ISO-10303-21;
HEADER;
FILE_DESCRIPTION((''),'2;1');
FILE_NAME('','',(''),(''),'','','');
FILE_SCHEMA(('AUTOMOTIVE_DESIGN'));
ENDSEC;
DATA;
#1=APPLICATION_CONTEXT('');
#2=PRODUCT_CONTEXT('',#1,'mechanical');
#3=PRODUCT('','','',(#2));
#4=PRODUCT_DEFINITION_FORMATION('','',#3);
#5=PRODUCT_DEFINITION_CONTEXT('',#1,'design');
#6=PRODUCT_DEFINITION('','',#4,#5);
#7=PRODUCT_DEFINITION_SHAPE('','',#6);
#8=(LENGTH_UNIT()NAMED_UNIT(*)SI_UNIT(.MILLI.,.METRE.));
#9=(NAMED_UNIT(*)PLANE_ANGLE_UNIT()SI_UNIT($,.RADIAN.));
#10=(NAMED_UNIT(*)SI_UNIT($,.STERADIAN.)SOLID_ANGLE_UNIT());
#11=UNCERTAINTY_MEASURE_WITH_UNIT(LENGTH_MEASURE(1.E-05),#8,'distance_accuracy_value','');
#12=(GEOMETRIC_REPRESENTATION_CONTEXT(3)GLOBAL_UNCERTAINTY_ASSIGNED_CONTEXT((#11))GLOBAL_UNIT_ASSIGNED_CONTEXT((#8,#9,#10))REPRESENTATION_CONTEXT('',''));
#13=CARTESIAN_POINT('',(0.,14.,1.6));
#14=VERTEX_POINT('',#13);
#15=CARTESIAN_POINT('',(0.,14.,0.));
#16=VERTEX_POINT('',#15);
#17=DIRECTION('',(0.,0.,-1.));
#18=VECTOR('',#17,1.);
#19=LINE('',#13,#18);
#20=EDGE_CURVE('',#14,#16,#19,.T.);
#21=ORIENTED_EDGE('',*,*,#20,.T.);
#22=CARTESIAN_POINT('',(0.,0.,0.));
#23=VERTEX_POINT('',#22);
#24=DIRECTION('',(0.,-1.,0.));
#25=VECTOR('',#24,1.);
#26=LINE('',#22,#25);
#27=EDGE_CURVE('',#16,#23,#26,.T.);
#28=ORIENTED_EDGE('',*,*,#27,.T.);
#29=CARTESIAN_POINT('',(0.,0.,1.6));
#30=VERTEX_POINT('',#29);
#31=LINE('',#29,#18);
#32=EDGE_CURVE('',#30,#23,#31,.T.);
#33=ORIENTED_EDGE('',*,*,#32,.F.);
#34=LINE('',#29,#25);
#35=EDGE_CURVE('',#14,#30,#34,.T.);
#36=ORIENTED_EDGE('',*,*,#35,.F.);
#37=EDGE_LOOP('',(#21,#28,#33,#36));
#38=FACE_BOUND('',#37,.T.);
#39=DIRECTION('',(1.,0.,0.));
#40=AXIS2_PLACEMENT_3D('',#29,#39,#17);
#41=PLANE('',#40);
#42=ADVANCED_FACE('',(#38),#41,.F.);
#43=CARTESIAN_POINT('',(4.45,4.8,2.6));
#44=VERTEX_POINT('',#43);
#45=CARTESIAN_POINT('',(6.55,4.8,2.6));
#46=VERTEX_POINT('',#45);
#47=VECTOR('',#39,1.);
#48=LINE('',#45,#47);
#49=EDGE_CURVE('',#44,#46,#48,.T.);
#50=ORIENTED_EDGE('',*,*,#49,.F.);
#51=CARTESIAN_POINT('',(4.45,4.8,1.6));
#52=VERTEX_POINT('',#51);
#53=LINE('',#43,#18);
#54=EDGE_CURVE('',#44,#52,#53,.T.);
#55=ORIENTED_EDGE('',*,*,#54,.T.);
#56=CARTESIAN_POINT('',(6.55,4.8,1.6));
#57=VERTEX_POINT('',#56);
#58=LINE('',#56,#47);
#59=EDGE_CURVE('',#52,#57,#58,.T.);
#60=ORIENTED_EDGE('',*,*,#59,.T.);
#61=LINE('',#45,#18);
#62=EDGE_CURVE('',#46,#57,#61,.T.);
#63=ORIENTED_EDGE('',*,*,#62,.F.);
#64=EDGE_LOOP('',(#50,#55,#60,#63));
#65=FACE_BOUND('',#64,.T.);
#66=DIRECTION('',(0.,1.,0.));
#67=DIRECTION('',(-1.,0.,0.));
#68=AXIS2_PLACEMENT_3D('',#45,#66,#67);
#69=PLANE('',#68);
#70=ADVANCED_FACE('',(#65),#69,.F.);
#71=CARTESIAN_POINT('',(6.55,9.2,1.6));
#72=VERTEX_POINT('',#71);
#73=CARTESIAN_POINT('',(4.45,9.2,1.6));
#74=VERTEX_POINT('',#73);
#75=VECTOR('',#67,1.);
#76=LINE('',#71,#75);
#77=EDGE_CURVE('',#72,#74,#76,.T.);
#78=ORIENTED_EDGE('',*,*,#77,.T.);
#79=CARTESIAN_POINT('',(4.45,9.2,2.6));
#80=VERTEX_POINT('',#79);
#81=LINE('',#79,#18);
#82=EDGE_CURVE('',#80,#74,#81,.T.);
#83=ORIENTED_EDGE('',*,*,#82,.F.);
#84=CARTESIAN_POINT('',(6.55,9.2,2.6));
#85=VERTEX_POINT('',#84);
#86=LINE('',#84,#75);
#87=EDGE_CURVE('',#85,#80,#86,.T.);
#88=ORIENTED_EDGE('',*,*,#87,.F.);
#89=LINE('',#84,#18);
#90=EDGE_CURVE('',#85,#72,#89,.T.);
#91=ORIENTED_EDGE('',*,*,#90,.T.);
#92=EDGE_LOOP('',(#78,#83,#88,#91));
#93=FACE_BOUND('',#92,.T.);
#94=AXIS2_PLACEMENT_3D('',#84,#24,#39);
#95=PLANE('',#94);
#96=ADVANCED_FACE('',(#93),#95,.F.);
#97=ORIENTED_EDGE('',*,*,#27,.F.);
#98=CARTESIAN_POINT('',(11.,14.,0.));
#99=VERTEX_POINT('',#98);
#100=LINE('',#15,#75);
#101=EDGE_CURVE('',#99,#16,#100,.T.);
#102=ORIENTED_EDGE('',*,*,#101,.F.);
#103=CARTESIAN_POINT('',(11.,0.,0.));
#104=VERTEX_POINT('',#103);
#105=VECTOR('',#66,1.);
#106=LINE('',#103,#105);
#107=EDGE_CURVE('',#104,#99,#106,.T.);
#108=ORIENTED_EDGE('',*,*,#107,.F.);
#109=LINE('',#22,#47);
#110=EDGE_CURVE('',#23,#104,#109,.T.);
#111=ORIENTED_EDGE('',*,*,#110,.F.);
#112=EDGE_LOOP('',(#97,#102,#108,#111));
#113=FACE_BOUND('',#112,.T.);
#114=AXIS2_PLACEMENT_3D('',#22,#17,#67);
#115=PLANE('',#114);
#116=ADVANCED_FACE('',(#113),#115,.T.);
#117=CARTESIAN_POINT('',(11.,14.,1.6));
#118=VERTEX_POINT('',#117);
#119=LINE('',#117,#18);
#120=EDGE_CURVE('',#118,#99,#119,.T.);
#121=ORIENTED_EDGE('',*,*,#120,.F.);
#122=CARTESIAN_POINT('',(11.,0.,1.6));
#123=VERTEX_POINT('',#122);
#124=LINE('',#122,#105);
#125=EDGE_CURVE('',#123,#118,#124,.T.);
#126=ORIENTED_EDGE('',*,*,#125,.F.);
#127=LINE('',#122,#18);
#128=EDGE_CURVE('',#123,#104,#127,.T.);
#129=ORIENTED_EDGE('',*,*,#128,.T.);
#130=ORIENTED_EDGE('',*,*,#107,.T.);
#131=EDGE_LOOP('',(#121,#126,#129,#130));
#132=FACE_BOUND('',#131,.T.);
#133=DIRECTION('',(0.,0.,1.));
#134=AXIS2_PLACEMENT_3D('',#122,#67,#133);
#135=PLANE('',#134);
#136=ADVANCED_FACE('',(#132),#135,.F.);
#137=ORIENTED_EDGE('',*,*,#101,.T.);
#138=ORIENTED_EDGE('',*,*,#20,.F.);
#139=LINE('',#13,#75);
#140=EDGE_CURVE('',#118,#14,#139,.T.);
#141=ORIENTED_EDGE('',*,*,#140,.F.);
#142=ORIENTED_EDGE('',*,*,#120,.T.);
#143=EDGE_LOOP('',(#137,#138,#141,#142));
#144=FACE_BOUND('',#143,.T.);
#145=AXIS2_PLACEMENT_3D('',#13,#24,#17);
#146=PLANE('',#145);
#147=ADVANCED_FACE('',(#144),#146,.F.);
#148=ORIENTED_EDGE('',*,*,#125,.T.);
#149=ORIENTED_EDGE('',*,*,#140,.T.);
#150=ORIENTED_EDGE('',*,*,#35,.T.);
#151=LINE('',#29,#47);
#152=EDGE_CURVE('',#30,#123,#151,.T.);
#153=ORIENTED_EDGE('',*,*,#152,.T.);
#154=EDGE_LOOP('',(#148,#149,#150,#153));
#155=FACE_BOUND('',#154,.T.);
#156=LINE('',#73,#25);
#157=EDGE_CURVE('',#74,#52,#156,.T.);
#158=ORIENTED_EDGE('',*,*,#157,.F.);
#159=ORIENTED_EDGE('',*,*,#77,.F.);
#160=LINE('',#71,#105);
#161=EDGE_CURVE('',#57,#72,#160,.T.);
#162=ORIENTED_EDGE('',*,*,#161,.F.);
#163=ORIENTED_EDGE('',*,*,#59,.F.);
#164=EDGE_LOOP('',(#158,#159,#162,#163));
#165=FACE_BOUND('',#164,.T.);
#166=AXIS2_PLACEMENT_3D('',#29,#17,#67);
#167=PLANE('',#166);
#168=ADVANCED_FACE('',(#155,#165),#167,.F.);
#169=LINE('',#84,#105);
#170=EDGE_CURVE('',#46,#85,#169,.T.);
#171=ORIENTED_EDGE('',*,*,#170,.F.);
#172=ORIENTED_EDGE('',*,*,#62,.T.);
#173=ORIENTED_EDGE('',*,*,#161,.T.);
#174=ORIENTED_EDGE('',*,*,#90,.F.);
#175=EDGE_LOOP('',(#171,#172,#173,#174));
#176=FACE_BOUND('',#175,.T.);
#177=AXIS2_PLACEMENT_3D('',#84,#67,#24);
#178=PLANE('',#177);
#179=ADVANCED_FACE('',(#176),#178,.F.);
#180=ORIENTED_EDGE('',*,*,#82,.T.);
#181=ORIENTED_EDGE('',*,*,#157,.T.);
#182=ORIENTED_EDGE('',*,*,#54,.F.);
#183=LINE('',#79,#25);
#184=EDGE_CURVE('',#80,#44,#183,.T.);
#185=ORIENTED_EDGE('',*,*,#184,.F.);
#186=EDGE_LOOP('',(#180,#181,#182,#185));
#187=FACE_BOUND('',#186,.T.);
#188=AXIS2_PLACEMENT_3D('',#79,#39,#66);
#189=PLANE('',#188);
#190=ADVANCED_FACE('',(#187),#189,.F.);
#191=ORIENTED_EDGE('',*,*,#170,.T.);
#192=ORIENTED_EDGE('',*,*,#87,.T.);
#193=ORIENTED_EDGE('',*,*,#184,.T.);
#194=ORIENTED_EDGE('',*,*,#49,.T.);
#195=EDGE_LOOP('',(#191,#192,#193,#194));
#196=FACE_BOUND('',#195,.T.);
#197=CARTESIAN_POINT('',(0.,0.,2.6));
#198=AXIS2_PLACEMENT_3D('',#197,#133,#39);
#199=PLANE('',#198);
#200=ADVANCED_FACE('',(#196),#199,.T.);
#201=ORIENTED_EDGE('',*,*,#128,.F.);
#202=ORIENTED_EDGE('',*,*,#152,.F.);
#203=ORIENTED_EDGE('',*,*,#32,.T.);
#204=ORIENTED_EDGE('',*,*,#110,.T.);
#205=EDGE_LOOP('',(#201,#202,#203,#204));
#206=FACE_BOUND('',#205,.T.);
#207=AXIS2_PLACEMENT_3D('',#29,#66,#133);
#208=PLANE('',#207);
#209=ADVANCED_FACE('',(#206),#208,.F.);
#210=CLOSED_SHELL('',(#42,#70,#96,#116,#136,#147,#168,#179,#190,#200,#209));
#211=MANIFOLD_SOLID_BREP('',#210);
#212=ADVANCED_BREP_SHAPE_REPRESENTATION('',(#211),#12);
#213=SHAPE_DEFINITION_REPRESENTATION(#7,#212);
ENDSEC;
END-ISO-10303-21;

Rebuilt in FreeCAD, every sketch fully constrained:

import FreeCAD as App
import Part
import Sketcher

V = App.Vector
Q = App.Units.Quantity


def add_polygon(sketch, points):
    """Adds a closed chain of lines whose ends are joined by coincident constraints."""
    first, n = sketch.GeometryCount, len(points)
    for a, b in zip(points, points[1:] + points[:1]):
        sketch.addGeometry(Part.LineSegment(App.Vector(*a, 0), App.Vector(*b, 0)), False)
    for i in range(n):
        sketch.addConstraint(Sketcher.Constraint("Coincident", first + i, 2, first + (i + 1) % n, 1))

doc = App.newDocument("Part")
params = doc.addObject("Spreadsheet::Sheet", "Params")
for row, (alias, value) in enumerate([
    ("sketch1_width", "11 mm"),
    ("sketch1_height", "14 mm"),
    ("pad1_length", "1.6 mm"),
    ("sketch2_width", "2.1 mm"),
    ("sketch2_height", "4.4 mm"),
    ("pad2_length", "1 mm"),
], start=1):
    params.set(f"A{row}", alias)
    params.set(f"B{row}", "=" + value)
    params.setAlias(f"B{row}", alias)

body = doc.addObject("PartDesign::Body", "Body")

sketch1 = body.newObject("Sketcher::SketchObject", "Sketch")
sketch1.AttachmentSupport = (doc.getObject("XY_Plane"), [""])
sketch1.MapMode = "FlatFace"
add_polygon(sketch1, [(0, 14), (0, 0), (11, 0), (11, 14)])
sketch1.addConstraint(Sketcher.Constraint("Vertical", 0))
sketch1.addConstraint(Sketcher.Constraint("Horizontal", 1))
sketch1.addConstraint(Sketcher.Constraint("Vertical", 2))
sketch1.addConstraint(Sketcher.Constraint("Horizontal", 3))
sketch1.addConstraint(Sketcher.Constraint("Coincident", 0, 2, -1, 1))
sketch1.addConstraint(Sketcher.Constraint("DistanceX", 1, 1, 1, 2, Q("11 mm")))
sketch1.addConstraint(Sketcher.Constraint("DistanceY", 0, 2, 0, 1, Q("14 mm")))
sketch1.setExpression("Constraints[9]", "Params.sketch1_width")
sketch1.setExpression("Constraints[10]", "Params.sketch1_height")
pad1 = body.newObject("PartDesign::Pad", "Pad")
pad1.Profile = sketch1
pad1.setExpression("Length", "Params.pad1_length")

sketch2 = body.newObject("Sketcher::SketchObject", "Sketch001")
sketch2.AttachmentSupport = (doc.getObject("XY_Plane"), [""])
sketch2.MapMode = "FlatFace"
sketch2.AttachmentOffset = App.Placement(V(0, 0, 1.6), App.Rotation())
add_polygon(sketch2, [(4.45, 9.2), (4.45, 4.8), (6.55, 4.8), (6.55, 9.2)])
sketch2.addConstraint(Sketcher.Constraint("Vertical", 0))
sketch2.addConstraint(Sketcher.Constraint("Horizontal", 1))
sketch2.addConstraint(Sketcher.Constraint("Vertical", 2))
sketch2.addConstraint(Sketcher.Constraint("Horizontal", 3))
sketch2.addConstraint(Sketcher.Constraint("DistanceX", 1, 1, 1, 2, Q("2.1 mm")))
sketch2.addConstraint(Sketcher.Constraint("DistanceY", 0, 2, 0, 1, Q("4.4 mm")))
sketch2.addConstraint(Sketcher.Constraint("DistanceY", -1, 1, 0, 2, Q("4.8 mm")))
sketch2.addConstraint(Sketcher.Constraint("DistanceX", -1, 1, 0, 2, Q("4.45 mm")))
sketch2.setExpression("Constraints[8]", "Params.sketch2_width")
sketch2.setExpression("Constraints[9]", "Params.sketch2_height")
pad2 = body.newObject("PartDesign::Pad", "Pad001")
pad2.Profile = sketch2
pad2.setExpression("Length", "Params.pad2_length")

doc.recompute()
